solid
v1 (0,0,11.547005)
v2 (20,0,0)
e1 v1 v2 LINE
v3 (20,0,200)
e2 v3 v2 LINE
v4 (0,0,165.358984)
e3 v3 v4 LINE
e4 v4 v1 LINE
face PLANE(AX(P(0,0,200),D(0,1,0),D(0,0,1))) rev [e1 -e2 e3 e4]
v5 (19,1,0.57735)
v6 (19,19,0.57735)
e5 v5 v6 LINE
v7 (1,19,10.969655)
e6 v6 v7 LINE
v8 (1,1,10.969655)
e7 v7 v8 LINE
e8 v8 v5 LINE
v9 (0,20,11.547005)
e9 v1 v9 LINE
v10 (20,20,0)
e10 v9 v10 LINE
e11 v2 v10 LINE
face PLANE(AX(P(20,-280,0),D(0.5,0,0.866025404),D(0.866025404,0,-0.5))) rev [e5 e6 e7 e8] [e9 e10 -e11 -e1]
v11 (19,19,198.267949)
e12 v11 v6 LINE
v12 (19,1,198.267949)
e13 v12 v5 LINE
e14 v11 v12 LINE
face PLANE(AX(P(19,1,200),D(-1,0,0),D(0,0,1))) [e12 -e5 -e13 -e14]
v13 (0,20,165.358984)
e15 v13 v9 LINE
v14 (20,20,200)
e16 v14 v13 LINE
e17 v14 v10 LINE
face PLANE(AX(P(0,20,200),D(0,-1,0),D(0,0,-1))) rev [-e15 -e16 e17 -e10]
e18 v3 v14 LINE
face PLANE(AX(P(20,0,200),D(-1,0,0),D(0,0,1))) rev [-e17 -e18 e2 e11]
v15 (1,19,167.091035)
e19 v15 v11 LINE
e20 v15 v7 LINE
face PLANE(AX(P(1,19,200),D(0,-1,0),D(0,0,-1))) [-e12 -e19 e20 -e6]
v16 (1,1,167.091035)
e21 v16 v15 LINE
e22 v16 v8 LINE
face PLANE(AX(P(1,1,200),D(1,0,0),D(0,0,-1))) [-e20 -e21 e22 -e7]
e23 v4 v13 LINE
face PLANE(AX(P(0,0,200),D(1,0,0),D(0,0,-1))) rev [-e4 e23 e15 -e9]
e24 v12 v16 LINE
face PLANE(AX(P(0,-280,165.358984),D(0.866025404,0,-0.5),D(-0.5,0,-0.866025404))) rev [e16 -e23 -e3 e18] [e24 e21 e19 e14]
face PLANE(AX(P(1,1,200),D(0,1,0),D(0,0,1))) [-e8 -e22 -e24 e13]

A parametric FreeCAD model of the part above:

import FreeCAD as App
import Part
import Sketcher
from FreeCAD import Vector
Q = App.Units.Quantity

doc = App.newDocument("Part")
body = doc.addObject("PartDesign::Body", "Body")

sketch1 = body.newObject("Sketcher::SketchObject", "Sketch")
sketch1.AttachmentSupport = (doc.getObject("XY_Plane"), [""])
sketch1.MapMode = "FlatFace"
sketch1.addGeometry([
    Part.LineSegment(Vector(0, 20, 0), Vector(0, 0, 0)),
    Part.LineSegment(Vector(0, 0, 0), Vector(20, 0, 0)),
    Part.LineSegment(Vector(20, 0, 0), Vector(20, 20, 0)),
    Part.LineSegment(Vector(20, 20, 0), Vector(0, 20, 0)),
    Part.LineSegment(Vector(19, 1, 0), Vector(1, 1, 0)),
    Part.LineSegment(Vector(1, 1, 0), Vector(1, 19, 0)),
    Part.LineSegment(Vector(1, 19, 0), Vector(19, 19, 0)),
    Part.LineSegment(Vector(19, 19, 0), Vector(19, 1, 0)),
], False)
sketch1.addConstraint([
    Sketcher.Constraint("Coincident", 0, 2, 1, 1),
    Sketcher.Constraint("Coincident", 1, 2, 2, 1),
    Sketcher.Constraint("Coincident", 2, 2, 3, 1),
    Sketcher.Constraint("Coincident", 3, 2, 0, 1),
    Sketcher.Constraint("Coincident", 4, 2, 5, 1),
    Sketcher.Constraint("Coincident", 5, 2, 6, 1),
    Sketcher.Constraint("Coincident", 6, 2, 7, 1),
    Sketcher.Constraint("Coincident", 7, 2, 4, 1),
    Sketcher.Constraint("Vertical", 0),
    Sketcher.Constraint("Horizontal", 1),
    Sketcher.Constraint("Vertical", 2),
    Sketcher.Constraint("Horizontal", 3),
    Sketcher.Constraint("Horizontal", 4),
    Sketcher.Constraint("Vertical", 5),
    Sketcher.Constraint("Horizontal", 6),
    Sketcher.Constraint("Vertical", 7),
    Sketcher.Constraint("Coincident", 0, 2, -1, 1),
    Sketcher.Constraint("Equal", 3, 0),
    Sketcher.Constraint("Equal", 6, 5),
    Sketcher.Constraint("DistanceX", 1, 1, 1, 2, 20.0),
    Sketcher.Constraint("DistanceX", 4, 2, 4, 1, 18.0),
    Sketcher.Constraint("DistanceX", -1, 1, 4, 2, 1.0),
    Sketcher.Constraint("DistanceY", -1, 1, 4, 2, 1.0),
])
pad1 = body.newObject("PartDesign::Pad", "Pad")
pad1.Profile = sketch1
pad1.Length = 200

sketch2 = body.newObject("Sketcher::SketchObject", "Sketch001")
sketch2.AttachmentSupport = (doc.getObject("XZ_Plane"), [""])
sketch2.MapMode = "FlatFace"
sketch2.AttachmentOffset = App.Placement(Vector(0, 0, -20), App.Rotation())
sketch2.addGeometry([
    Part.LineSegment(Vector(0, 12, 0), Vector(20, 0, 0)),
    Part.LineSegment(Vector(20, 0, 0), Vector(0, 0, 0)),
    Part.LineSegment(Vector(0, 0, 0), Vector(0, 12, 0)),
    Part.LineSegment(Vector(20, 200, 0), Vector(0, 165, 0)),
    Part.LineSegment(Vector(0, 165, 0), Vector(0, 200, 0)),
    Part.LineSegment(Vector(0, 200, 0), Vector(20, 200, 0)),
], False)
sketch2.addConstraint([
    Sketcher.Constraint("Coincident", 0, 2, 1, 1),
    Sketcher.Constraint("Coincident", 1, 2, 2, 1),
    Sketcher.Constraint("Coincident", 2, 2, 0, 1),
    Sketcher.Constraint("Coincident", 3, 2, 4, 1),
    Sketcher.Constraint("Coincident", 4, 2, 5, 1),
    Sketcher.Constraint("Coincident", 5, 2, 3, 1),
    Sketcher.Constraint("Horizontal", 1),
    Sketcher.Constraint("Vertical", 2),
    Sketcher.Constraint("Vertical", 4),
    Sketcher.Constraint("Horizontal", 5),
    Sketcher.Constraint("Coincident", 1, 2, -1, 1),
    Sketcher.Constraint("PointOnObject", 3, 2, -2),
    Sketcher.Constraint("Perpendicular", 0, 3),
    Sketcher.Constraint("Vertical", 0, 2, 5, 2),
    Sketcher.Constraint("DistanceX", 1, 2, 1, 1, 20.0),
    Sketcher.Constraint("Angle", 0, Q("-30 deg")),
    Sketcher.Constraint("DistanceY", -1, 1, 4, 2, 200.0),
])
pocket1 = body.newObject("PartDesign::Pocket", "Pocket")
pocket1.Profile = sketch2
pocket1.Length = 300
pocket1.Reversed = True

doc.recompute()
